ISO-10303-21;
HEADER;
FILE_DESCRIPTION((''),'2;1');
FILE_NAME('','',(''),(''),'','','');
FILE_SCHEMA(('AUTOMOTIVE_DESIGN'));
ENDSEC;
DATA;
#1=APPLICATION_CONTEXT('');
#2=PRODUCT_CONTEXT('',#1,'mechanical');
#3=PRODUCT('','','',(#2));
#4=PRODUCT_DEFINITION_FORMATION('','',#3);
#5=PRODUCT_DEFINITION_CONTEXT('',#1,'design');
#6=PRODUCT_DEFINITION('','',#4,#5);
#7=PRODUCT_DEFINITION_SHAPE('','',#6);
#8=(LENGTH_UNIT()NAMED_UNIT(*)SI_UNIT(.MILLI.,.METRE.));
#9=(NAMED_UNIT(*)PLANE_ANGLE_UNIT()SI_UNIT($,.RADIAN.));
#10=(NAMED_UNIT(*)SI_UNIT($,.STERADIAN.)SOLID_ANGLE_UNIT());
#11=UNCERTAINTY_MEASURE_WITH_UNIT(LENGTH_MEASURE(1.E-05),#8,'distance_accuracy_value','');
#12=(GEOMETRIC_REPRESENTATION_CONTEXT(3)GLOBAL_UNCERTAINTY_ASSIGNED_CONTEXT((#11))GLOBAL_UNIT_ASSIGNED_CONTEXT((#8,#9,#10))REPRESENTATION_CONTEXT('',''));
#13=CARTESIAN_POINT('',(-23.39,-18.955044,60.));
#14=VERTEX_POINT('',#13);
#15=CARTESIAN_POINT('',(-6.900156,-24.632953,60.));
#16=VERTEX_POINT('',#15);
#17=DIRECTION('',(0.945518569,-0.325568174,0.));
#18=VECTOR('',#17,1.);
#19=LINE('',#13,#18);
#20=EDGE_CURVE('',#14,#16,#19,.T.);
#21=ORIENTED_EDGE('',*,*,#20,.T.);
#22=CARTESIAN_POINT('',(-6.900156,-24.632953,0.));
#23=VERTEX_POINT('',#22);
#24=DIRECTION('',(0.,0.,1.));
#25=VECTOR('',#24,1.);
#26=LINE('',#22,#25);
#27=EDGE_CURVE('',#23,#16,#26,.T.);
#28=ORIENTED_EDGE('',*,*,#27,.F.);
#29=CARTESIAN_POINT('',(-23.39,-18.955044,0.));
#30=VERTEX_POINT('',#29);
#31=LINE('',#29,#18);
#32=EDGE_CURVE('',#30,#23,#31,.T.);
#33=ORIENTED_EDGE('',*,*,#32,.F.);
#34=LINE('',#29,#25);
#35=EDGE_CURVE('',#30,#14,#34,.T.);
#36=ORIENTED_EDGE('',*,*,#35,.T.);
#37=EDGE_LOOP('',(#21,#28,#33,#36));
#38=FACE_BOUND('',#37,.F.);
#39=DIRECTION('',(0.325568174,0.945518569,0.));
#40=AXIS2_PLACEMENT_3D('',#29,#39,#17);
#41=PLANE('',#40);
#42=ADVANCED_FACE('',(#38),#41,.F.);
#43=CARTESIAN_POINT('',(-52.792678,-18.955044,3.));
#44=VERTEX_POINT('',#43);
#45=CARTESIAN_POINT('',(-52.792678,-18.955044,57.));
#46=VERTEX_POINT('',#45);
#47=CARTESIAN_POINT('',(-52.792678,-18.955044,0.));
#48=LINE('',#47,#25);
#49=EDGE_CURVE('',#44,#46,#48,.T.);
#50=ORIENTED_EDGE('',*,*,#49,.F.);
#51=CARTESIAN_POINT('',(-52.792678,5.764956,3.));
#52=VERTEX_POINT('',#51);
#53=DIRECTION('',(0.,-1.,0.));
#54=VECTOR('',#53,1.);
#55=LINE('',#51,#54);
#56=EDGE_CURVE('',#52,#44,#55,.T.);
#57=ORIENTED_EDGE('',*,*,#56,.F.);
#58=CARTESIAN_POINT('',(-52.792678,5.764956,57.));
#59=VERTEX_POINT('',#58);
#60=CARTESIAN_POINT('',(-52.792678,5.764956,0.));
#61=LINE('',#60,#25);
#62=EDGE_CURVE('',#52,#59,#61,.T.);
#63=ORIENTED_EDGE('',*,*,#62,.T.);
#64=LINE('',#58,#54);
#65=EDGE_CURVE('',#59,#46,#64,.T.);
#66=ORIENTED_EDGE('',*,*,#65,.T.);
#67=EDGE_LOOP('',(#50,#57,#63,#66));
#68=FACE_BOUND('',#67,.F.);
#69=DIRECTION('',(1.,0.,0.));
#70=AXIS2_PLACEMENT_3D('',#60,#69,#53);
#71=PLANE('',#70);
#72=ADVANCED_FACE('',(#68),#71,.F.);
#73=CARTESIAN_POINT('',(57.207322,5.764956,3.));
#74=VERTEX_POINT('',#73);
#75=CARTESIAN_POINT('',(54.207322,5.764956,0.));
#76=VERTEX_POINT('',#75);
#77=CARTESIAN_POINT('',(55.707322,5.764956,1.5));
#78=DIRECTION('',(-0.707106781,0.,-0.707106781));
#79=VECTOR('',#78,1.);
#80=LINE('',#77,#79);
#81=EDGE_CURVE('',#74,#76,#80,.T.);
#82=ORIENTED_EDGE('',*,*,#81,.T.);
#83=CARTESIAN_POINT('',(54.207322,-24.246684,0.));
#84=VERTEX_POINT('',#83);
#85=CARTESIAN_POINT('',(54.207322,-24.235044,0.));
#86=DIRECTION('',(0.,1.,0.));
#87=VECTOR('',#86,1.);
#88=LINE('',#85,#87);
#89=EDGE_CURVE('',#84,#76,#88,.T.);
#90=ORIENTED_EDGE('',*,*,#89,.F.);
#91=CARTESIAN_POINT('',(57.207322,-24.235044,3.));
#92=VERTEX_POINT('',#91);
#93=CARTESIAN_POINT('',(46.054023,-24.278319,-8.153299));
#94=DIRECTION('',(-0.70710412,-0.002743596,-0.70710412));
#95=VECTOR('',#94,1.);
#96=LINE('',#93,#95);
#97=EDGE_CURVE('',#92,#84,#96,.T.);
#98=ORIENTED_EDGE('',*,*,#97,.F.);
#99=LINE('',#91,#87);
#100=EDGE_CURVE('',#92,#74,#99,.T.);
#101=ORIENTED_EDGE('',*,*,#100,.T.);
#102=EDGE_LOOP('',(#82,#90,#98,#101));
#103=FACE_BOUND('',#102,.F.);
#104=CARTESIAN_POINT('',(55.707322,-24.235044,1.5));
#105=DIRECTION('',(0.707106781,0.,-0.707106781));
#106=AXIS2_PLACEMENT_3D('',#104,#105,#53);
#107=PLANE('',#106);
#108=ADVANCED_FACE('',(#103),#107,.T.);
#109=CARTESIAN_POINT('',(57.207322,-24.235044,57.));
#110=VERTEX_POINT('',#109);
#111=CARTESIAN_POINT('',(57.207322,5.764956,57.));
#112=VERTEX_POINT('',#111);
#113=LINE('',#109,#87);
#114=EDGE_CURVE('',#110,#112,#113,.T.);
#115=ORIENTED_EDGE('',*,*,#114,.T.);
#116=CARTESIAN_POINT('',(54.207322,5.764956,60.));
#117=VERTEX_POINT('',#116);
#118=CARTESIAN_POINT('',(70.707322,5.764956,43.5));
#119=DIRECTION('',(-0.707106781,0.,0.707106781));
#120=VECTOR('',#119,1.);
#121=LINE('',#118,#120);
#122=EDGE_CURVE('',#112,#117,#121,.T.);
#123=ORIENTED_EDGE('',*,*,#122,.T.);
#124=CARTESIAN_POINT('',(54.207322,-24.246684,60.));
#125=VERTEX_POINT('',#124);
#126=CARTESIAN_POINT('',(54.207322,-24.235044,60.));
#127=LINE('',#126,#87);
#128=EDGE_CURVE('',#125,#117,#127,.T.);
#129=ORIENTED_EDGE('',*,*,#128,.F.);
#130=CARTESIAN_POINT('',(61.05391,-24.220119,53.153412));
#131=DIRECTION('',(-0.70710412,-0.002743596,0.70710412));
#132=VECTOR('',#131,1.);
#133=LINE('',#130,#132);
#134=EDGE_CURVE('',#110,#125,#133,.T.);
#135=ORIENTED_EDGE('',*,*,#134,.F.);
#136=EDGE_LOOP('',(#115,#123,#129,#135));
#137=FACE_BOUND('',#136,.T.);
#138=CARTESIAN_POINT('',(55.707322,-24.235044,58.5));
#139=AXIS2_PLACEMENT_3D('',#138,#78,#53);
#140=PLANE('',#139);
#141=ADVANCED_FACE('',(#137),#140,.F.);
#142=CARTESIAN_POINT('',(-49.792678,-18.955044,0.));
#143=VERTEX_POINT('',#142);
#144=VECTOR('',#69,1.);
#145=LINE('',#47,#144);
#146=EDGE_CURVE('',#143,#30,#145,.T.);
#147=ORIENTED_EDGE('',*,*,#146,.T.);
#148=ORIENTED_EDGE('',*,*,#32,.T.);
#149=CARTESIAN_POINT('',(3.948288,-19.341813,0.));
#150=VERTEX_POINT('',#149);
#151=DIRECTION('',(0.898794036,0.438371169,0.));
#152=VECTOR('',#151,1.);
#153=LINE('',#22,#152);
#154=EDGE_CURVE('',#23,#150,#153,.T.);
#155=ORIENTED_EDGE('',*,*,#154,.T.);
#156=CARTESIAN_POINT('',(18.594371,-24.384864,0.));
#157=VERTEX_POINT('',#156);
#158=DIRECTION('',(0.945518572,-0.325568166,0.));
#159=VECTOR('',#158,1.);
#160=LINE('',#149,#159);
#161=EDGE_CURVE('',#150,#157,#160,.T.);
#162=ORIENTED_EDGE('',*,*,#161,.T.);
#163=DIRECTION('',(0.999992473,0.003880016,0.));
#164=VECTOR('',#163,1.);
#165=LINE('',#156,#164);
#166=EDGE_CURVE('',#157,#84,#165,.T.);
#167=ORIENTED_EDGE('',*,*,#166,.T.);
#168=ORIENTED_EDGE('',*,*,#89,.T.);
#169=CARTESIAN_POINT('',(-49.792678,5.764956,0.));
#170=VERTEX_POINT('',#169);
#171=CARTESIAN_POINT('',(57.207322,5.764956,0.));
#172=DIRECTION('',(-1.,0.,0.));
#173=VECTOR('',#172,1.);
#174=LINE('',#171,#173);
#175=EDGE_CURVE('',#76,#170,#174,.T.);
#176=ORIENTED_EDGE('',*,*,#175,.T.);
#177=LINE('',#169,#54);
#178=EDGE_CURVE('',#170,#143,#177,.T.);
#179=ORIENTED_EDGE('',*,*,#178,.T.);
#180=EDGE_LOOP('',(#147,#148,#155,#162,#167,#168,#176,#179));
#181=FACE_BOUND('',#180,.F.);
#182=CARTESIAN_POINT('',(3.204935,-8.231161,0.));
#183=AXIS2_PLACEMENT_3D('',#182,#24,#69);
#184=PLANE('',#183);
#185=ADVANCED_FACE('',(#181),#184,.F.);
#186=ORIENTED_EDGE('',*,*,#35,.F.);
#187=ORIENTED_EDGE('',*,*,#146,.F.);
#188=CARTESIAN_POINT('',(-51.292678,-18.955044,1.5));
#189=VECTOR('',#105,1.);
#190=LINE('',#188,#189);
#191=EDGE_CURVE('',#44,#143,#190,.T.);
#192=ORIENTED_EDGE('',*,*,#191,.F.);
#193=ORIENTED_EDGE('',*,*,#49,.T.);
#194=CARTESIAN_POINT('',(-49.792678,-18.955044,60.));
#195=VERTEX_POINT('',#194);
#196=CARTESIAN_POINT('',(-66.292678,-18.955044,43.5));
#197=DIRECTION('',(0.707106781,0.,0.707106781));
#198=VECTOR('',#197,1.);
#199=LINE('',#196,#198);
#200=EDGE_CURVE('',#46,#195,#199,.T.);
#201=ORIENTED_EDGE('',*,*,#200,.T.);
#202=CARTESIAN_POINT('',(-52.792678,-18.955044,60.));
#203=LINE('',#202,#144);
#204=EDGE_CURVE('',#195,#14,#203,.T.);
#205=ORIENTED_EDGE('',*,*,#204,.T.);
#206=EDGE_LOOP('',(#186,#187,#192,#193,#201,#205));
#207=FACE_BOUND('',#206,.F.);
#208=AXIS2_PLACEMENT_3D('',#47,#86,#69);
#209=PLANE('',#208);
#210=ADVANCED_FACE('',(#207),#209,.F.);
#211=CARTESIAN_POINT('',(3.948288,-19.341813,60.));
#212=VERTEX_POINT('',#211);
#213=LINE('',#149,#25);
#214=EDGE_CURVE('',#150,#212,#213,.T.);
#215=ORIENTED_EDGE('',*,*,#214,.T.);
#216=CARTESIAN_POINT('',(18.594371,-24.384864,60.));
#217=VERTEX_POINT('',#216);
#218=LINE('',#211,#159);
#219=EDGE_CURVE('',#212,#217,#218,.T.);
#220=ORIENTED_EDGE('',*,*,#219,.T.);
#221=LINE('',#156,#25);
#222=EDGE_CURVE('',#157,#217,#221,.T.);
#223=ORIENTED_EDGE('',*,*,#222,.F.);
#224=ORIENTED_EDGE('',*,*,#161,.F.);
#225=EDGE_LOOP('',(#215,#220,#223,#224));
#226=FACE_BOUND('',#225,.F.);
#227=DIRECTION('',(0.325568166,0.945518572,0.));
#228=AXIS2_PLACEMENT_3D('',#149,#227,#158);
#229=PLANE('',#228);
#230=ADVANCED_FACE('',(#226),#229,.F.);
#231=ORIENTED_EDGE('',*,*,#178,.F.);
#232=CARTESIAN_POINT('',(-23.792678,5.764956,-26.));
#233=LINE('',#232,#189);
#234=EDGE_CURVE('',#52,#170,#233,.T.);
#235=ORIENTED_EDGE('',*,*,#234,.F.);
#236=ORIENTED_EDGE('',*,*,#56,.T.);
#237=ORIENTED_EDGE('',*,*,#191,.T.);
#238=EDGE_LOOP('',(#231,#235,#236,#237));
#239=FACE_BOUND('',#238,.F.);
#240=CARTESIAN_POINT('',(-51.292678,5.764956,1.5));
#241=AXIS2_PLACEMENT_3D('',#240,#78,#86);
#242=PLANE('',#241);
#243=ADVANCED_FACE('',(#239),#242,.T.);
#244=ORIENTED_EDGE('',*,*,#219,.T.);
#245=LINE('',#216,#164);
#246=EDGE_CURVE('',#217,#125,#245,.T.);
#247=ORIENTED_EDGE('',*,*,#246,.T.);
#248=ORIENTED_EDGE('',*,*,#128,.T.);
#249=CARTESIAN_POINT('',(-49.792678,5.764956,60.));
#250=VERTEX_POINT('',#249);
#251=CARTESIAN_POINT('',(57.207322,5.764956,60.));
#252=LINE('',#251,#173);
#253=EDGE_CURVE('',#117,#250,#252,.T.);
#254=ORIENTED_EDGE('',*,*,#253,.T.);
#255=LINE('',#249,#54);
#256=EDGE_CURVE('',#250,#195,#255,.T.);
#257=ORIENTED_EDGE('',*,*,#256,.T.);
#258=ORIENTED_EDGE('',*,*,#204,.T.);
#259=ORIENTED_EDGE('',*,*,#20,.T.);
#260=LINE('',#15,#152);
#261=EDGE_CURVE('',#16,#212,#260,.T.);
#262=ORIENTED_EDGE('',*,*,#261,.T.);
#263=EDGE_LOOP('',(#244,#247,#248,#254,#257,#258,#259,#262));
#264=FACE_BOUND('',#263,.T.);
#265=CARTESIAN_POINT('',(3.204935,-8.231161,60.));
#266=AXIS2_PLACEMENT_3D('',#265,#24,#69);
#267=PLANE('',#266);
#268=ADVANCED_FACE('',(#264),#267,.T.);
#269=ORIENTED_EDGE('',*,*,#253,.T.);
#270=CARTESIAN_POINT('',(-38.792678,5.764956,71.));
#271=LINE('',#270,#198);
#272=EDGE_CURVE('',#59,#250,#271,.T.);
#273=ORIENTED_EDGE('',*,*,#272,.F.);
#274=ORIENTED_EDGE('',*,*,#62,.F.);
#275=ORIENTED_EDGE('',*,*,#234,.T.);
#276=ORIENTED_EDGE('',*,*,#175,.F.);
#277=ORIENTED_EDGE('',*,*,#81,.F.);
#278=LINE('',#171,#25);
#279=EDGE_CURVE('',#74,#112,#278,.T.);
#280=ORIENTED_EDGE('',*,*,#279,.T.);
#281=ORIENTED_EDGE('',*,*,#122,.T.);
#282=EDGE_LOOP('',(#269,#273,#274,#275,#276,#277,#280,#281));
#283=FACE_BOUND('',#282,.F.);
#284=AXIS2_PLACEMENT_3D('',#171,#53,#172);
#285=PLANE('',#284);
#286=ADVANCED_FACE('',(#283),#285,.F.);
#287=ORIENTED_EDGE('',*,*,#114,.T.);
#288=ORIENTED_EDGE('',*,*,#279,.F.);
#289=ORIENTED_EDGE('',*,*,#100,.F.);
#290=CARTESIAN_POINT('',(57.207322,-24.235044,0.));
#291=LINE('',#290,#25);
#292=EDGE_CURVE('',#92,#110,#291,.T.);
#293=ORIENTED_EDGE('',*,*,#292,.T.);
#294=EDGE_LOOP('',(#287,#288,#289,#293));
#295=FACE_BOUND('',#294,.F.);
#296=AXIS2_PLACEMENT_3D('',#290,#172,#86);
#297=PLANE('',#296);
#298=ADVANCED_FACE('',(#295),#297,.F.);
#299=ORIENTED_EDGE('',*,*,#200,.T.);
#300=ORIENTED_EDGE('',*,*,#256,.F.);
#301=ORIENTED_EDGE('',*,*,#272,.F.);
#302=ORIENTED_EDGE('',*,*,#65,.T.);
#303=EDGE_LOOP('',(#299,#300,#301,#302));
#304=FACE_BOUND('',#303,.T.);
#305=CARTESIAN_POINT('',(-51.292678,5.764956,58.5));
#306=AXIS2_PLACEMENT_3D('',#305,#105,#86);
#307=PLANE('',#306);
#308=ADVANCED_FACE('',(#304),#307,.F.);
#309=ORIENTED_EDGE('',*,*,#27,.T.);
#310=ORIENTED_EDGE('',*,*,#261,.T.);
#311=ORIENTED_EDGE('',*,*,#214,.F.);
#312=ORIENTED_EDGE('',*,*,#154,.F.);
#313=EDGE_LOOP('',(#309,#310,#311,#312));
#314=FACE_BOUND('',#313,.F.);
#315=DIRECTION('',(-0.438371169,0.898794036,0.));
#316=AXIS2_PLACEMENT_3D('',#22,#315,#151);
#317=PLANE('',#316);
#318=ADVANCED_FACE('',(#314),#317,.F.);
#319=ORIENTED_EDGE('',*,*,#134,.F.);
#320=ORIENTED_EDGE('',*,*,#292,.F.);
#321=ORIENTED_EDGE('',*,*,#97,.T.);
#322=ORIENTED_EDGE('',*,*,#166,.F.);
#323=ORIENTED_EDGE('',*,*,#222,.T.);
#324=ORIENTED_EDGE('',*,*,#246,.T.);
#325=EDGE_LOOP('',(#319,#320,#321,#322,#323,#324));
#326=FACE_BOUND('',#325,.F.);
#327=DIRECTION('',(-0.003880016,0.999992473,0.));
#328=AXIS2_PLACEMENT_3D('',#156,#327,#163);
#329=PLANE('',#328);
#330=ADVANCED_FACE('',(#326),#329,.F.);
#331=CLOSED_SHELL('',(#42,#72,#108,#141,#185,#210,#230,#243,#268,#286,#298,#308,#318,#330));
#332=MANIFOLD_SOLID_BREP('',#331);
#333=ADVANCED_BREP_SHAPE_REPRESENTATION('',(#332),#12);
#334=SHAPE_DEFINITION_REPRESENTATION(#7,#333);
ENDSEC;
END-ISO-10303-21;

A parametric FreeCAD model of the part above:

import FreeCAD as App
import Part
import Sketcher

V = App.Vector
Q = App.Units.Quantity


def edges_at(feature, points):
    """Names of the edges that pass closest to the given points."""
    edges = feature.Shape.Edges
    near = lambda p: min(range(len(edges)), key=lambda i: edges[i].distToShape(Part.Vertex(*p))[0])
    return sorted({f"Edge{near(p) + 1}" for p in points})

doc = App.newDocument("Part")
body = doc.addObject("PartDesign::Body", "Body")

sketch1 = doc.addObject("Sketcher::SketchObject", "Sketch")
body.addObject(sketch1)
sketch1.AttachmentSupport = (doc.XY_Plane, [""])
sketch1.MapMode = "FlatFace"
sketch1.addGeometry([
    Part.LineSegment(V(57, 6, 0), V(-53, 6, 0)),
    Part.LineSegment(V(-53, 6, 0), V(-53, -19, 0)),
    Part.LineSegment(V(-53, -19, 0), V(-23, -19, 0)),
    Part.LineSegment(V(-23, -19, 0), V(-7, -25, 0)),
    Part.LineSegment(V(-7, -25, 0), V(4, -19, 0)),
    Part.LineSegment(V(4, -19, 0), V(19, -24, 0)),
    Part.LineSegment(V(19, -24, 0), V(57, -24, 0)),
    Part.LineSegment(V(57, -24, 0), V(57, 6, 0)),
], False)
sketch1.addConstraint([
    Sketcher.Constraint("Coincident", 0, 2, 1, 1),
    Sketcher.Constraint("Coincident", 1, 2, 2, 1),
    Sketcher.Constraint("Coincident", 2, 2, 3, 1),
    Sketcher.Constraint("Coincident", 3, 2, 4, 1),
    Sketcher.Constraint("Coincident", 4, 2, 5, 1),
    Sketcher.Constraint("Coincident", 5, 2, 6, 1),
    Sketcher.Constraint("Coincident", 6, 2, 7, 1),
    Sketcher.Constraint("Coincident", 7, 2, 0, 1),
    Sketcher.Constraint("Horizontal", 0),
    Sketcher.Constraint("Vertical", 1),
    Sketcher.Constraint("Horizontal", 2),
    Sketcher.Constraint("Vertical", 7),
    Sketcher.Constraint("Parallel", 3, 5),
    Sketcher.Constraint("DistanceX", 0, 2, 0, 1, 110.0),
    Sketcher.Constraint("DistanceY", 7, 1, 7, 2, 30.0),
    Sketcher.Constraint("Angle", 3, Q("-19.000001 deg")),
    Sketcher.Constraint("Angle", 4, Q("26.000001 deg")),
    Sketcher.Constraint("DistanceY", 1, 2, 1, 1, 24.72),
    Sketcher.Constraint("Distance", 3, 17.44),
    Sketcher.Constraint("Distance", 4, 12.07),
    Sketcher.Constraint("Distance", 5, 15.49),
    Sketcher.Constraint("DistanceX", 2, 2, -1, 1, 23.39),
    Sketcher.Constraint("DistanceX", 2, 1, 2, 2, 29.402678),
    Sketcher.Constraint("DistanceY", -1, 1, 0, 2, 5.764956),
])
pad1 = doc.addObject("PartDesign::Pad", "Pad")
body.addObject(pad1)
pad1.Profile = sketch1
pad1.Length = 60
doc.recompute()

chamfer = doc.addObject("PartDesign::Chamfer", "Chamfer")
body.addObject(chamfer)
chamfer.Base = (pad1, edges_at(pad1, [
    (-52.793, -6.595, 60),
    (-52.793, -6.595, 0),
    (57.207, -9.235, 60),
    (57.207, -9.235, 0),
]))
chamfer.Size = 3

doc.recompute()
